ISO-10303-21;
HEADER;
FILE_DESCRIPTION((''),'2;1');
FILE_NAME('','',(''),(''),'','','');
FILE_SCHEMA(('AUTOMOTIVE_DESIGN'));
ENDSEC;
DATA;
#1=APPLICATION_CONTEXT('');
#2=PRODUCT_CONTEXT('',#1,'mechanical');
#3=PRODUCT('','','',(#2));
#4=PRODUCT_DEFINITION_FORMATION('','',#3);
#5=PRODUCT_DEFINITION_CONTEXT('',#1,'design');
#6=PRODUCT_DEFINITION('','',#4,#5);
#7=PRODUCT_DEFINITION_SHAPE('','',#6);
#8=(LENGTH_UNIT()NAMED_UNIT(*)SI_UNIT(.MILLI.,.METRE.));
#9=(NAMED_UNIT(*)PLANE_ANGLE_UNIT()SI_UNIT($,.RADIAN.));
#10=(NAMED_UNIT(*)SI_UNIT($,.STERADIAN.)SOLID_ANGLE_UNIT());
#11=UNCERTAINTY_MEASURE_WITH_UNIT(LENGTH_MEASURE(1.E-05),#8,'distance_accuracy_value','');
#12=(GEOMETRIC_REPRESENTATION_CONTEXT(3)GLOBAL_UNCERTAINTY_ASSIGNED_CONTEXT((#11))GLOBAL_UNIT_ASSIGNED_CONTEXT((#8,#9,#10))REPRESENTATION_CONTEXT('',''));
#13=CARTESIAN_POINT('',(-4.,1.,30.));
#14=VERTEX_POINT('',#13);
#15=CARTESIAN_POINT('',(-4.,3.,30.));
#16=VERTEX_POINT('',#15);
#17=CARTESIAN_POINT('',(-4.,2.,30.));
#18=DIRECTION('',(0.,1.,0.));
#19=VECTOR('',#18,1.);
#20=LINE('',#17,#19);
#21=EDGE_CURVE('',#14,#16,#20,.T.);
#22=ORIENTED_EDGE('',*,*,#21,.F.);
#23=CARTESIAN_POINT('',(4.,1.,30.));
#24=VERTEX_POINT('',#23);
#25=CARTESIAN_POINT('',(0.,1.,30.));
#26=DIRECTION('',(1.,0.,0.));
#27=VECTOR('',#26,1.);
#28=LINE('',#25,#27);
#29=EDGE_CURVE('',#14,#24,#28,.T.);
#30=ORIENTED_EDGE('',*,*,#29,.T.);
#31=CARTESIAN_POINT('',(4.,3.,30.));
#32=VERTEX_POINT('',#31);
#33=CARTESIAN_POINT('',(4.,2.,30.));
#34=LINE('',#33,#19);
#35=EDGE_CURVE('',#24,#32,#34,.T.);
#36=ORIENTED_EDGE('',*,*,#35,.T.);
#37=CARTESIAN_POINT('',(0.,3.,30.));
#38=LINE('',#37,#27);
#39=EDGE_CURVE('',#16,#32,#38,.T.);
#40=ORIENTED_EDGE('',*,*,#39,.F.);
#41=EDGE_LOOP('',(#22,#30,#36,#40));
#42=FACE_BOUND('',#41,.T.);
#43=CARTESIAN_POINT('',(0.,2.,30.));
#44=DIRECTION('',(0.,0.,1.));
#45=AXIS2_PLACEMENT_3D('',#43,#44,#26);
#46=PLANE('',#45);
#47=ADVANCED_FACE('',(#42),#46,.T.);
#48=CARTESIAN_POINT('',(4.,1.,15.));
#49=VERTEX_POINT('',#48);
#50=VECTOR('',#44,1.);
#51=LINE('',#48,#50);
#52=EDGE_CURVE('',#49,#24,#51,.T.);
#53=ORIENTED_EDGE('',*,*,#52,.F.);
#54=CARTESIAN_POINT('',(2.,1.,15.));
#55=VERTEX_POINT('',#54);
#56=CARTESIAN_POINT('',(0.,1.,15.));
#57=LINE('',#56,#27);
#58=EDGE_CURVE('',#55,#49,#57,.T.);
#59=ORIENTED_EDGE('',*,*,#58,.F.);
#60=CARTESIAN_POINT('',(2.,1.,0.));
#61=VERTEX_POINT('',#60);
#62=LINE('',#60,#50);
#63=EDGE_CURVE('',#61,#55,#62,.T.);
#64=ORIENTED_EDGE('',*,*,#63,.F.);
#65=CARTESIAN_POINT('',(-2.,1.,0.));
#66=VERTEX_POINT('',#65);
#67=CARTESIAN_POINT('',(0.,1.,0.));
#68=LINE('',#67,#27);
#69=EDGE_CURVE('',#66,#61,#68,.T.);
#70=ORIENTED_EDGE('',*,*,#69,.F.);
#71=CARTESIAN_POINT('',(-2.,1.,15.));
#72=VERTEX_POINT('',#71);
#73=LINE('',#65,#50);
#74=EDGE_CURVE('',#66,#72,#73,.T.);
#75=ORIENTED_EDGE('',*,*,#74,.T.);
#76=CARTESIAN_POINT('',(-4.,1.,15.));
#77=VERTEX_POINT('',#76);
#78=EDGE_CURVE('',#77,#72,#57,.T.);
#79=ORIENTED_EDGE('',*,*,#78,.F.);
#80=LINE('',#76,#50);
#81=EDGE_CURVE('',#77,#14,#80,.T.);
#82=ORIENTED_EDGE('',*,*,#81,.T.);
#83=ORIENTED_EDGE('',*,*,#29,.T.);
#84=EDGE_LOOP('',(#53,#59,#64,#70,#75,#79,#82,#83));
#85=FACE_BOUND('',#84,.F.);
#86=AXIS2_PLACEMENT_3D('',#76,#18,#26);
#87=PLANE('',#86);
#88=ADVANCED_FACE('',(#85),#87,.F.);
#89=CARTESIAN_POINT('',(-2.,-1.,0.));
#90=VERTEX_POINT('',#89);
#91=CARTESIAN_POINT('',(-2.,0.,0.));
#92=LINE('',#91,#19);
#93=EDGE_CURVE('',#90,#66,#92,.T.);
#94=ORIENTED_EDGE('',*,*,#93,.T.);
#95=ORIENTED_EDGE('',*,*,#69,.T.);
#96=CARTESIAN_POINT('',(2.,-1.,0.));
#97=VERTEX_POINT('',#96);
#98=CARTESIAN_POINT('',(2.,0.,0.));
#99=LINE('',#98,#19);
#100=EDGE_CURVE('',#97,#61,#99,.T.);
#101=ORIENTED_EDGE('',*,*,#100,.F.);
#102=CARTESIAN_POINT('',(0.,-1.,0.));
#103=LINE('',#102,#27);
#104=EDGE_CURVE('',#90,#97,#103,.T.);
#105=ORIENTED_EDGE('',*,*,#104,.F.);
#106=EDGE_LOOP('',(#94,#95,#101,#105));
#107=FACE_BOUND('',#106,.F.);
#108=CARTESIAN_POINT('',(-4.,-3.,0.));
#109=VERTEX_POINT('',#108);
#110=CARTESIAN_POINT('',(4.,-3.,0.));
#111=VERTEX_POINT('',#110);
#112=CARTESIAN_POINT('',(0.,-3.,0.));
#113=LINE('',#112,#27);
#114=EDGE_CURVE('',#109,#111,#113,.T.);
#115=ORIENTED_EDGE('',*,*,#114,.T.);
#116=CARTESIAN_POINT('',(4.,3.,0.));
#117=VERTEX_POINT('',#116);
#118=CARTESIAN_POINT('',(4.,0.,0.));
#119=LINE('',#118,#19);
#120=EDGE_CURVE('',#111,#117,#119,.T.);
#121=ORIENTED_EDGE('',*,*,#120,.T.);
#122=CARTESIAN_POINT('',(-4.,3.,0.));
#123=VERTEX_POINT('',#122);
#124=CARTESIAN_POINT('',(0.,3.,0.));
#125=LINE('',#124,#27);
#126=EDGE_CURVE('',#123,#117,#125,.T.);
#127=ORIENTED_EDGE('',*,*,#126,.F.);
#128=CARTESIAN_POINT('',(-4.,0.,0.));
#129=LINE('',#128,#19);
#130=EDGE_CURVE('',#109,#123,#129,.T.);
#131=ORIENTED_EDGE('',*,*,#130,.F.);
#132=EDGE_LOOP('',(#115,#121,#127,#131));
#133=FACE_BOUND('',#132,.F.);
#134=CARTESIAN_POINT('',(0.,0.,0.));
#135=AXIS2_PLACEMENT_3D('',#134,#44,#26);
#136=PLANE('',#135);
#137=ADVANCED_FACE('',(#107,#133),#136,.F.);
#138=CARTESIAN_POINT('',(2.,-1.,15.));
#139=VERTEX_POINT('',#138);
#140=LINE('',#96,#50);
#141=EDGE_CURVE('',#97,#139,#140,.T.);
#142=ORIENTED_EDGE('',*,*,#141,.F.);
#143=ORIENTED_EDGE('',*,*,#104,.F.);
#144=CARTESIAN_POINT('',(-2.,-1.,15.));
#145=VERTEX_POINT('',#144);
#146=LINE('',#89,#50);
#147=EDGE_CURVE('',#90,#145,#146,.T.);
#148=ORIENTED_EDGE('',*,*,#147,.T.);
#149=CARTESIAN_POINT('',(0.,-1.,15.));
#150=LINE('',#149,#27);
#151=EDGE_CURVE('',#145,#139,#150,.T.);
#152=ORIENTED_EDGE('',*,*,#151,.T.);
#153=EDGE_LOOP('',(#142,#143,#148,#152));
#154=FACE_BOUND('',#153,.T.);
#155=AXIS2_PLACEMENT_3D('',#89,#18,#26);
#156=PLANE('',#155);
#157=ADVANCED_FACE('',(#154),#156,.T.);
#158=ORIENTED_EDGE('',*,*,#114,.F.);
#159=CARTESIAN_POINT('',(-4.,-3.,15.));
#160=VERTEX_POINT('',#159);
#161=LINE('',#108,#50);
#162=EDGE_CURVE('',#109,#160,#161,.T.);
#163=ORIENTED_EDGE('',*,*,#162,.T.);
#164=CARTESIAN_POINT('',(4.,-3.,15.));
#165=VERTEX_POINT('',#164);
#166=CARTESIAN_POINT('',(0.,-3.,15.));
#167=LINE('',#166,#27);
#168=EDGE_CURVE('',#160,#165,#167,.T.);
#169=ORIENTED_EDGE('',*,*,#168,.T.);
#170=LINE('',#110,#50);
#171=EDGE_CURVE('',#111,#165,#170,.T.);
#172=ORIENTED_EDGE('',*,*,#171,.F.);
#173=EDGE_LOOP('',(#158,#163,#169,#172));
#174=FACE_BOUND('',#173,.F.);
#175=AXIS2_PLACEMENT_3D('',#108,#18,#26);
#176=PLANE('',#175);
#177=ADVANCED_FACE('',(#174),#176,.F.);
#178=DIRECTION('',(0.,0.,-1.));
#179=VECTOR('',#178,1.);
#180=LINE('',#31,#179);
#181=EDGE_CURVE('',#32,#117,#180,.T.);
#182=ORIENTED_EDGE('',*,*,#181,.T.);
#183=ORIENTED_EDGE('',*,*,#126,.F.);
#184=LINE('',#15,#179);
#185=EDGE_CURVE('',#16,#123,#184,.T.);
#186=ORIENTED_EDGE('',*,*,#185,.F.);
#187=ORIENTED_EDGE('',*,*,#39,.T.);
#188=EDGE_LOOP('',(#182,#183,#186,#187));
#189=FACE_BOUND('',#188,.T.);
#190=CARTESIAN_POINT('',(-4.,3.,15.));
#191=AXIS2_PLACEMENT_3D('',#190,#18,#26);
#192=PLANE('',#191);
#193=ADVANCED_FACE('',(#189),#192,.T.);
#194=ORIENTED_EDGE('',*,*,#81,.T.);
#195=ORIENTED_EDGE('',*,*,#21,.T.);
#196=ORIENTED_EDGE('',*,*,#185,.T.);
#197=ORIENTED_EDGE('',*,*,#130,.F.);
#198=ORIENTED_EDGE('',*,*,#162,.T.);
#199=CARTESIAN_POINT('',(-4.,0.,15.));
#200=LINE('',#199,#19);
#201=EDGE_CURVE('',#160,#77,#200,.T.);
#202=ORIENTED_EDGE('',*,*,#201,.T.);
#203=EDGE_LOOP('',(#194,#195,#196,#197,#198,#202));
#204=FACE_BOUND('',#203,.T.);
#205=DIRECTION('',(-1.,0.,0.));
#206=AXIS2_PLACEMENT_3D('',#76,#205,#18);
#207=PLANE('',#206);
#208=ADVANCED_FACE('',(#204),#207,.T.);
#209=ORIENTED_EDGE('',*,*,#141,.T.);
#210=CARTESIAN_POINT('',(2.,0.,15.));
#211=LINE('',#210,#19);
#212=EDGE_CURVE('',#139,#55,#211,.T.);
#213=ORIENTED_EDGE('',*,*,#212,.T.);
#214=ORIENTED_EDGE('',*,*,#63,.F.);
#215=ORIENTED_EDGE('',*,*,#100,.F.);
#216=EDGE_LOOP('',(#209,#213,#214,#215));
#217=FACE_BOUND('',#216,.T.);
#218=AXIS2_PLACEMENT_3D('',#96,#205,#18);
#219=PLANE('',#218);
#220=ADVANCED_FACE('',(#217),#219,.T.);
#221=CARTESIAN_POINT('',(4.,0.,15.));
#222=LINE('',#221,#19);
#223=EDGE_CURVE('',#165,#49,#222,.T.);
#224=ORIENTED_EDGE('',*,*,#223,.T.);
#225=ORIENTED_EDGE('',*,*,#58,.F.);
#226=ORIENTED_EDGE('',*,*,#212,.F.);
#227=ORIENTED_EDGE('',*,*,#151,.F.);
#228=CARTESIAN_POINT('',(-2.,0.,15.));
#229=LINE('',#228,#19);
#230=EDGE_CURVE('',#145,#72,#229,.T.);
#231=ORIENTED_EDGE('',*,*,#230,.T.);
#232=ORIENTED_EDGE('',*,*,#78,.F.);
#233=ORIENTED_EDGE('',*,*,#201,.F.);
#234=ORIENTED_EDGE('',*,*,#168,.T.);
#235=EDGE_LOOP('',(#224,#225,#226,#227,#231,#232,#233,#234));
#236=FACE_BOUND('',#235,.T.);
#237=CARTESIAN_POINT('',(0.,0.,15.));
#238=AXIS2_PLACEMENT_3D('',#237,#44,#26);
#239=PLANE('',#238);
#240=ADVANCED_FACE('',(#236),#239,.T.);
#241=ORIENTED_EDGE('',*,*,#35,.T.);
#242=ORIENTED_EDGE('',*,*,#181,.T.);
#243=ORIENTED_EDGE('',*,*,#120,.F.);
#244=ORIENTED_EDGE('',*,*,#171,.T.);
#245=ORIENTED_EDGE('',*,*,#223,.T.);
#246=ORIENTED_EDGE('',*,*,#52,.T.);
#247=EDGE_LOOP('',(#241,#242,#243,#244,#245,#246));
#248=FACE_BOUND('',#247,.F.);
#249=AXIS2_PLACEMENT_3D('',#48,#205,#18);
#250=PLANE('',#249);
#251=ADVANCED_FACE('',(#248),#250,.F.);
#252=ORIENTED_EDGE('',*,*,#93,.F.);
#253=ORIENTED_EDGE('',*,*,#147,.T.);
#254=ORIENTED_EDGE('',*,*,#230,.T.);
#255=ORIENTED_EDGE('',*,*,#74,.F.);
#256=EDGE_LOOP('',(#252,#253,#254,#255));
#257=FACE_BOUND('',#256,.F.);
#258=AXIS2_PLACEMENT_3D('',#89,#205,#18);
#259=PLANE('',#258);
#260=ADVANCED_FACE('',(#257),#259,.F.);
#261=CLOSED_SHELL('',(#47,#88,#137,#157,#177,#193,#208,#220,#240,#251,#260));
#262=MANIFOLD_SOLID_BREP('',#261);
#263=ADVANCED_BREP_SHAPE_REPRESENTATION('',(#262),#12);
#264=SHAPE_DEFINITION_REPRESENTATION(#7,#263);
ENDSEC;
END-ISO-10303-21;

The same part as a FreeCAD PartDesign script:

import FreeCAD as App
import Part
import Sketcher
from FreeCAD import Vector

doc = App.newDocument("Part")
params = doc.addObject("Spreadsheet::Sheet", "Params")
for row, (alias, value) in enumerate([
    ("sketch1_width", "8 mm"),
    ("sketch1_width2", "4 mm"),
    ("sketch1_height", "6 mm"),
    ("sketch1_height2", "2 mm"),
    ("pad1_length", "15 mm"),
    ("sketch2_width", "8 mm"),
    ("sketch2_height", "2 mm"),
    ("pad2_length", "15 mm"),
], start=1):
    params.set(f"A{row}", alias)
    params.set(f"B{row}", "=" + value)
    params.setAlias(f"B{row}", alias)

body = doc.addObject("PartDesign::Body", "Body")

# Sketch on XY plane
sketch1 = doc.addObject("Sketcher::SketchObject", "Sketch")
body.addObject(sketch1)
sketch1.AttachmentSupport = (doc.XY_Plane, [""])
sketch1.MapMode = "FlatFace"
sketch1.addGeometry([
    Part.LineSegment(Vector(-4, 3, 0), Vector(-4, -3, 0)),  # 0
    Part.LineSegment(Vector(-4, -3, 0), Vector(4, -3, 0)),  # 1
    Part.LineSegment(Vector(4, -3, 0), Vector(4, 3, 0)),  # 2
    Part.LineSegment(Vector(4, 3, 0), Vector(-4, 3, 0)),  # 3
    Part.LineSegment(Vector(2, -1, 0), Vector(-2, -1, 0)),  # 4
    Part.LineSegment(Vector(-2, -1, 0), Vector(-2, 1, 0)),  # 5
    Part.LineSegment(Vector(-2, 1, 0), Vector(2, 1, 0)),  # 6
    Part.LineSegment(Vector(2, 1, 0), Vector(2, -1, 0)),  # 7
], False)
sketch1.addConstraint([
    Sketcher.Constraint("Coincident", 0, 2, 1, 1),
    Sketcher.Constraint("Coincident", 1, 2, 2, 1),
    Sketcher.Constraint("Coincident", 2, 2, 3, 1),
    Sketcher.Constraint("Coincident", 3, 2, 0, 1),
    Sketcher.Constraint("Coincident", 4, 2, 5, 1),
    Sketcher.Constraint("Coincident", 5, 2, 6, 1),
    Sketcher.Constraint("Coincident", 6, 2, 7, 1),
    Sketcher.Constraint("Coincident", 7, 2, 4, 1),
    Sketcher.Constraint("Vertical", 0),
    Sketcher.Constraint("Horizontal", 1),
    Sketcher.Constraint("Vertical", 2),
    Sketcher.Constraint("Horizontal", 3),
    Sketcher.Constraint("Horizontal", 4),
    Sketcher.Constraint("Vertical", 5),
    Sketcher.Constraint("Horizontal", 6),
    Sketcher.Constraint("Vertical", 7),
    Sketcher.Constraint("Symmetric", 0, 2, 2, 2, -1, 1),
    Sketcher.Constraint("Symmetric", 4, 2, 6, 2, -1, 1),
    Sketcher.Constraint("DistanceX", 1, 1, 1, 2, 8.0),
    Sketcher.Constraint("DistanceX", 4, 2, 4, 1, 4.0),
    Sketcher.Constraint("DistanceY", 0, 2, 0, 1, 6.0),
    Sketcher.Constraint("DistanceY", 5, 1, 5, 2, 2.0),
])
sketch1.setExpression("Constraints[18]", "Params.sketch1_width")
sketch1.setExpression("Constraints[19]", "Params.sketch1_width2")
sketch1.setExpression("Constraints[20]", "Params.sketch1_height")
sketch1.setExpression("Constraints[21]", "Params.sketch1_height2")
pad1 = doc.addObject("PartDesign::Pad", "Pad")
body.addObject(pad1)
pad1.Profile = sketch1
pad1.setExpression("Length", "Params.pad1_length")

# Sketch on XY plane
sketch2 = doc.addObject("Sketcher::SketchObject", "Sketch001")
body.addObject(sketch2)
sketch2.AttachmentSupport = (doc.XY_Plane, [""])
sketch2.MapMode = "FlatFace"
sketch2.AttachmentOffset = App.Placement(Vector(0, 0, 15), App.Rotation())
sketch2.addGeometry([
    Part.LineSegment(Vector(-4, 3, 0), Vector(-4, 1, 0)),
    Part.LineSegment(Vector(-4, 1, 0), Vector(4, 1, 0)),
    Part.LineSegment(Vector(4, 1, 0), Vector(4, 3, 0)),
    Part.LineSegment(Vector(4, 3, 0), Vector(-4, 3, 0)),
], False)
sketch2.addConstraint([
    Sketcher.Constraint("Coincident", 0, 2, 1, 1),
    Sketcher.Constraint("Coincident", 1, 2, 2, 1),
    Sketcher.Constraint("Coincident", 2, 2, 3, 1),
    Sketcher.Constraint("Coincident", 3, 2, 0, 1),
    Sketcher.Constraint("Vertical", 0),
    Sketcher.Constraint("Horizontal", 1),
    Sketcher.Constraint("Vertical", 2),
    Sketcher.Constraint("Horizontal", 3),
    Sketcher.Constraint("DistanceX", 1, 1, 1, 2, 8.0),
    Sketcher.Constraint("DistanceY", 0, 2, 0, 1, 2.0),
    Sketcher.Constraint("DistanceX", 0, 2, -1, 1, 4.0),
    Sketcher.Constraint("DistanceY", -1, 1, 0, 2, 1.0),
])
sketch2.setExpression("Constraints[8]", "Params.sketch2_width")
sketch2.setExpression("Constraints[9]", "Params.sketch2_height")
pad2 = doc.addObject("PartDesign::Pad", "Pad001")
body.addObject(pad2)
pad2.Profile = sketch2
pad2.setExpression("Length", "Params.pad2_length")

doc.recompute()
